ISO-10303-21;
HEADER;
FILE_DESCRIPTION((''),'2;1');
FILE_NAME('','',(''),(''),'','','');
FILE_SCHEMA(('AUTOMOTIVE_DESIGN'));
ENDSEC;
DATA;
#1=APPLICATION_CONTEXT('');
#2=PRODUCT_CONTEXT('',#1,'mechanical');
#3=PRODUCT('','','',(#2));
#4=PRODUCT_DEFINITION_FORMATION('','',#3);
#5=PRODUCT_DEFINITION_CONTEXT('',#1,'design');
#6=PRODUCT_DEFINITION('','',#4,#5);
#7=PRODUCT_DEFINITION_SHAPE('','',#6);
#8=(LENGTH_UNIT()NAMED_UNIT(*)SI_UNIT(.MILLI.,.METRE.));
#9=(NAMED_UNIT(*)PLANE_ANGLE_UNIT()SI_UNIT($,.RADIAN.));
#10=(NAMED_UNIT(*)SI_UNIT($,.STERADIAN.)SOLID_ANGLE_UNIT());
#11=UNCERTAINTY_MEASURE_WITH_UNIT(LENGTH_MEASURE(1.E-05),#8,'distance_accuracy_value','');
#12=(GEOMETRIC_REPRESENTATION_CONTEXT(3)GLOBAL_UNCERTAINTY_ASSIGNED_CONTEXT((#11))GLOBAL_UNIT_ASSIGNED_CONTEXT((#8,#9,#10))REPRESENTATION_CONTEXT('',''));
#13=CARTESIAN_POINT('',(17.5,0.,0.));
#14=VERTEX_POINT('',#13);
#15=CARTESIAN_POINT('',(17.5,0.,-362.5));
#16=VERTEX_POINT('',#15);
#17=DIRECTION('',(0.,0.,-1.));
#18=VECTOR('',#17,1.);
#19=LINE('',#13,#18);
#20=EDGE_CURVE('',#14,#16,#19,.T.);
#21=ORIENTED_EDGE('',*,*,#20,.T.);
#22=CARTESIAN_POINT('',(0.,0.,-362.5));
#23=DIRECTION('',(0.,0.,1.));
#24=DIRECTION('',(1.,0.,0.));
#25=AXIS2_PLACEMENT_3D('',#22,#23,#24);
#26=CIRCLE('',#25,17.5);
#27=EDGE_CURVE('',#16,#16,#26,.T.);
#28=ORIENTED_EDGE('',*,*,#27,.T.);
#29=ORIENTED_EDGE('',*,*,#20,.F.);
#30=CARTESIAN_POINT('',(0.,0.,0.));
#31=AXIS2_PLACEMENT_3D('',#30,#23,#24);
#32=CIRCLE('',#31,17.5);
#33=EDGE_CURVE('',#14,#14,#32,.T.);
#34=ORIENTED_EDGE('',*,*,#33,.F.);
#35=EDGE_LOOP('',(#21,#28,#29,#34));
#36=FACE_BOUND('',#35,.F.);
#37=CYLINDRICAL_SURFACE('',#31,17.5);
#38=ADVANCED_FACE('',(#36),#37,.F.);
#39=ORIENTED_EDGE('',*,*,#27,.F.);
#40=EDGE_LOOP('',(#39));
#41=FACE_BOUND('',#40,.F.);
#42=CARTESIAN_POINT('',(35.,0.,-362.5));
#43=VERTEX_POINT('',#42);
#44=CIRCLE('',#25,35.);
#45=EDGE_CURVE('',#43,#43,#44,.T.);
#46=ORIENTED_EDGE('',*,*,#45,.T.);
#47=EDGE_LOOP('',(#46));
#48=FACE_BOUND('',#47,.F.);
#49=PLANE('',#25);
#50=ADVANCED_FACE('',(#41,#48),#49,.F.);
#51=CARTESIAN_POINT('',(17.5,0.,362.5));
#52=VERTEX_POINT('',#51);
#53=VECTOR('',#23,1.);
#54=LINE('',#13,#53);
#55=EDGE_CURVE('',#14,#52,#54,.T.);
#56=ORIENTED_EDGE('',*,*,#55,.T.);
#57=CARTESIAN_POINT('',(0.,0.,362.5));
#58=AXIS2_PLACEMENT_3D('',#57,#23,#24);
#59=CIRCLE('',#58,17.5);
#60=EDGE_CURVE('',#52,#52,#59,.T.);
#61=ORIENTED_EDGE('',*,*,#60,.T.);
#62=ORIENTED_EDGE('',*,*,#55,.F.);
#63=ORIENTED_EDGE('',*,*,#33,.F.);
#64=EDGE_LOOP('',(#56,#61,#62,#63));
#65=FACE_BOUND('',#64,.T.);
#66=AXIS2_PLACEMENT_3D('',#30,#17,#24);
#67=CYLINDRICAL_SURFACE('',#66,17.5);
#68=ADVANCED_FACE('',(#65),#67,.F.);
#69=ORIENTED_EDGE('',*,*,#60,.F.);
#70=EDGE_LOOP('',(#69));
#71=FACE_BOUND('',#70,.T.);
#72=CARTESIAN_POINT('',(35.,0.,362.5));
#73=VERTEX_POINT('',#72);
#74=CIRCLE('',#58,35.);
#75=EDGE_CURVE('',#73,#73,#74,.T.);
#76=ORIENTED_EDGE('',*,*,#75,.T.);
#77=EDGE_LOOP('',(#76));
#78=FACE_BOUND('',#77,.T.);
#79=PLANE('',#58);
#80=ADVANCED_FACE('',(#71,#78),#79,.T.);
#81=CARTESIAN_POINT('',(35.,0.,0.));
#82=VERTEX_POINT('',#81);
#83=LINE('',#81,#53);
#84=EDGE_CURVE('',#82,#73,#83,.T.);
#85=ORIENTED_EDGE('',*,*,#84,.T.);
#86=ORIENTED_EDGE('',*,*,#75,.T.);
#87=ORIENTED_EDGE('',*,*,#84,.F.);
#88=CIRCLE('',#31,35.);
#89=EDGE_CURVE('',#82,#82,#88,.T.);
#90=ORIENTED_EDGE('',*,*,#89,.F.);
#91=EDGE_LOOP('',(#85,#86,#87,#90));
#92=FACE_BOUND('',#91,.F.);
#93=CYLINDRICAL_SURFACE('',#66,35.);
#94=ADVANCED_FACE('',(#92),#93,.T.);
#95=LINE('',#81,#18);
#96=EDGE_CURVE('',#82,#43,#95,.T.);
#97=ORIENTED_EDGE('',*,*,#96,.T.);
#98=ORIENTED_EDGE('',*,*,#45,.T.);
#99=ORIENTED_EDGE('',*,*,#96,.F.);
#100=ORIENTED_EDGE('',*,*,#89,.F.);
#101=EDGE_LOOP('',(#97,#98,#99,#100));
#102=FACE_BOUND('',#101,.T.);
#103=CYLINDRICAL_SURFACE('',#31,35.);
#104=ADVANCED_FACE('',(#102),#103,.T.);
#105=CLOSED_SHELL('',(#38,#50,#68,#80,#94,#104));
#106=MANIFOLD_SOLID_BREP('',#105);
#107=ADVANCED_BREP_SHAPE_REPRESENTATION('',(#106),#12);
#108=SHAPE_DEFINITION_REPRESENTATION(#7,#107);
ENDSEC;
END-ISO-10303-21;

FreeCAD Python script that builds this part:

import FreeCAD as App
import Part
import Sketcher

V = App.Vector

doc = App.newDocument("Part")
body = doc.addObject("PartDesign::Body", "Body")

# Sketch on XY plane
sketch1 = body.newObject("Sketcher::SketchObject", "Sketch")
sketch1.AttachmentSupport = (doc.getObject("XY_Plane"), [""])
sketch1.MapMode = "FlatFace"
sketch1.addGeometry(Part.Circle(V(0, 0, 0), V(0, 0, 1), 35), False)
sketch1.addGeometry(Part.Circle(V(0, 0, 0), V(0, 0, 1), 18), False)
sketch1.addConstraint(Sketcher.Constraint("Coincident", 0, 3, -1, 1))
sketch1.addConstraint(Sketcher.Constraint("Coincident", 1, 3, -1, 1))
sketch1.addConstraint(Sketcher.Constraint("Diameter", 0, 70.0))
sketch1.addConstraint(Sketcher.Constraint("Diameter", 1, 35.0))
pad1 = body.newObject("PartDesign::Pad", "Pad")
pad1.Profile = sketch1
pad1.Length = 725
pad1.Midplane = True

doc.recompute()
